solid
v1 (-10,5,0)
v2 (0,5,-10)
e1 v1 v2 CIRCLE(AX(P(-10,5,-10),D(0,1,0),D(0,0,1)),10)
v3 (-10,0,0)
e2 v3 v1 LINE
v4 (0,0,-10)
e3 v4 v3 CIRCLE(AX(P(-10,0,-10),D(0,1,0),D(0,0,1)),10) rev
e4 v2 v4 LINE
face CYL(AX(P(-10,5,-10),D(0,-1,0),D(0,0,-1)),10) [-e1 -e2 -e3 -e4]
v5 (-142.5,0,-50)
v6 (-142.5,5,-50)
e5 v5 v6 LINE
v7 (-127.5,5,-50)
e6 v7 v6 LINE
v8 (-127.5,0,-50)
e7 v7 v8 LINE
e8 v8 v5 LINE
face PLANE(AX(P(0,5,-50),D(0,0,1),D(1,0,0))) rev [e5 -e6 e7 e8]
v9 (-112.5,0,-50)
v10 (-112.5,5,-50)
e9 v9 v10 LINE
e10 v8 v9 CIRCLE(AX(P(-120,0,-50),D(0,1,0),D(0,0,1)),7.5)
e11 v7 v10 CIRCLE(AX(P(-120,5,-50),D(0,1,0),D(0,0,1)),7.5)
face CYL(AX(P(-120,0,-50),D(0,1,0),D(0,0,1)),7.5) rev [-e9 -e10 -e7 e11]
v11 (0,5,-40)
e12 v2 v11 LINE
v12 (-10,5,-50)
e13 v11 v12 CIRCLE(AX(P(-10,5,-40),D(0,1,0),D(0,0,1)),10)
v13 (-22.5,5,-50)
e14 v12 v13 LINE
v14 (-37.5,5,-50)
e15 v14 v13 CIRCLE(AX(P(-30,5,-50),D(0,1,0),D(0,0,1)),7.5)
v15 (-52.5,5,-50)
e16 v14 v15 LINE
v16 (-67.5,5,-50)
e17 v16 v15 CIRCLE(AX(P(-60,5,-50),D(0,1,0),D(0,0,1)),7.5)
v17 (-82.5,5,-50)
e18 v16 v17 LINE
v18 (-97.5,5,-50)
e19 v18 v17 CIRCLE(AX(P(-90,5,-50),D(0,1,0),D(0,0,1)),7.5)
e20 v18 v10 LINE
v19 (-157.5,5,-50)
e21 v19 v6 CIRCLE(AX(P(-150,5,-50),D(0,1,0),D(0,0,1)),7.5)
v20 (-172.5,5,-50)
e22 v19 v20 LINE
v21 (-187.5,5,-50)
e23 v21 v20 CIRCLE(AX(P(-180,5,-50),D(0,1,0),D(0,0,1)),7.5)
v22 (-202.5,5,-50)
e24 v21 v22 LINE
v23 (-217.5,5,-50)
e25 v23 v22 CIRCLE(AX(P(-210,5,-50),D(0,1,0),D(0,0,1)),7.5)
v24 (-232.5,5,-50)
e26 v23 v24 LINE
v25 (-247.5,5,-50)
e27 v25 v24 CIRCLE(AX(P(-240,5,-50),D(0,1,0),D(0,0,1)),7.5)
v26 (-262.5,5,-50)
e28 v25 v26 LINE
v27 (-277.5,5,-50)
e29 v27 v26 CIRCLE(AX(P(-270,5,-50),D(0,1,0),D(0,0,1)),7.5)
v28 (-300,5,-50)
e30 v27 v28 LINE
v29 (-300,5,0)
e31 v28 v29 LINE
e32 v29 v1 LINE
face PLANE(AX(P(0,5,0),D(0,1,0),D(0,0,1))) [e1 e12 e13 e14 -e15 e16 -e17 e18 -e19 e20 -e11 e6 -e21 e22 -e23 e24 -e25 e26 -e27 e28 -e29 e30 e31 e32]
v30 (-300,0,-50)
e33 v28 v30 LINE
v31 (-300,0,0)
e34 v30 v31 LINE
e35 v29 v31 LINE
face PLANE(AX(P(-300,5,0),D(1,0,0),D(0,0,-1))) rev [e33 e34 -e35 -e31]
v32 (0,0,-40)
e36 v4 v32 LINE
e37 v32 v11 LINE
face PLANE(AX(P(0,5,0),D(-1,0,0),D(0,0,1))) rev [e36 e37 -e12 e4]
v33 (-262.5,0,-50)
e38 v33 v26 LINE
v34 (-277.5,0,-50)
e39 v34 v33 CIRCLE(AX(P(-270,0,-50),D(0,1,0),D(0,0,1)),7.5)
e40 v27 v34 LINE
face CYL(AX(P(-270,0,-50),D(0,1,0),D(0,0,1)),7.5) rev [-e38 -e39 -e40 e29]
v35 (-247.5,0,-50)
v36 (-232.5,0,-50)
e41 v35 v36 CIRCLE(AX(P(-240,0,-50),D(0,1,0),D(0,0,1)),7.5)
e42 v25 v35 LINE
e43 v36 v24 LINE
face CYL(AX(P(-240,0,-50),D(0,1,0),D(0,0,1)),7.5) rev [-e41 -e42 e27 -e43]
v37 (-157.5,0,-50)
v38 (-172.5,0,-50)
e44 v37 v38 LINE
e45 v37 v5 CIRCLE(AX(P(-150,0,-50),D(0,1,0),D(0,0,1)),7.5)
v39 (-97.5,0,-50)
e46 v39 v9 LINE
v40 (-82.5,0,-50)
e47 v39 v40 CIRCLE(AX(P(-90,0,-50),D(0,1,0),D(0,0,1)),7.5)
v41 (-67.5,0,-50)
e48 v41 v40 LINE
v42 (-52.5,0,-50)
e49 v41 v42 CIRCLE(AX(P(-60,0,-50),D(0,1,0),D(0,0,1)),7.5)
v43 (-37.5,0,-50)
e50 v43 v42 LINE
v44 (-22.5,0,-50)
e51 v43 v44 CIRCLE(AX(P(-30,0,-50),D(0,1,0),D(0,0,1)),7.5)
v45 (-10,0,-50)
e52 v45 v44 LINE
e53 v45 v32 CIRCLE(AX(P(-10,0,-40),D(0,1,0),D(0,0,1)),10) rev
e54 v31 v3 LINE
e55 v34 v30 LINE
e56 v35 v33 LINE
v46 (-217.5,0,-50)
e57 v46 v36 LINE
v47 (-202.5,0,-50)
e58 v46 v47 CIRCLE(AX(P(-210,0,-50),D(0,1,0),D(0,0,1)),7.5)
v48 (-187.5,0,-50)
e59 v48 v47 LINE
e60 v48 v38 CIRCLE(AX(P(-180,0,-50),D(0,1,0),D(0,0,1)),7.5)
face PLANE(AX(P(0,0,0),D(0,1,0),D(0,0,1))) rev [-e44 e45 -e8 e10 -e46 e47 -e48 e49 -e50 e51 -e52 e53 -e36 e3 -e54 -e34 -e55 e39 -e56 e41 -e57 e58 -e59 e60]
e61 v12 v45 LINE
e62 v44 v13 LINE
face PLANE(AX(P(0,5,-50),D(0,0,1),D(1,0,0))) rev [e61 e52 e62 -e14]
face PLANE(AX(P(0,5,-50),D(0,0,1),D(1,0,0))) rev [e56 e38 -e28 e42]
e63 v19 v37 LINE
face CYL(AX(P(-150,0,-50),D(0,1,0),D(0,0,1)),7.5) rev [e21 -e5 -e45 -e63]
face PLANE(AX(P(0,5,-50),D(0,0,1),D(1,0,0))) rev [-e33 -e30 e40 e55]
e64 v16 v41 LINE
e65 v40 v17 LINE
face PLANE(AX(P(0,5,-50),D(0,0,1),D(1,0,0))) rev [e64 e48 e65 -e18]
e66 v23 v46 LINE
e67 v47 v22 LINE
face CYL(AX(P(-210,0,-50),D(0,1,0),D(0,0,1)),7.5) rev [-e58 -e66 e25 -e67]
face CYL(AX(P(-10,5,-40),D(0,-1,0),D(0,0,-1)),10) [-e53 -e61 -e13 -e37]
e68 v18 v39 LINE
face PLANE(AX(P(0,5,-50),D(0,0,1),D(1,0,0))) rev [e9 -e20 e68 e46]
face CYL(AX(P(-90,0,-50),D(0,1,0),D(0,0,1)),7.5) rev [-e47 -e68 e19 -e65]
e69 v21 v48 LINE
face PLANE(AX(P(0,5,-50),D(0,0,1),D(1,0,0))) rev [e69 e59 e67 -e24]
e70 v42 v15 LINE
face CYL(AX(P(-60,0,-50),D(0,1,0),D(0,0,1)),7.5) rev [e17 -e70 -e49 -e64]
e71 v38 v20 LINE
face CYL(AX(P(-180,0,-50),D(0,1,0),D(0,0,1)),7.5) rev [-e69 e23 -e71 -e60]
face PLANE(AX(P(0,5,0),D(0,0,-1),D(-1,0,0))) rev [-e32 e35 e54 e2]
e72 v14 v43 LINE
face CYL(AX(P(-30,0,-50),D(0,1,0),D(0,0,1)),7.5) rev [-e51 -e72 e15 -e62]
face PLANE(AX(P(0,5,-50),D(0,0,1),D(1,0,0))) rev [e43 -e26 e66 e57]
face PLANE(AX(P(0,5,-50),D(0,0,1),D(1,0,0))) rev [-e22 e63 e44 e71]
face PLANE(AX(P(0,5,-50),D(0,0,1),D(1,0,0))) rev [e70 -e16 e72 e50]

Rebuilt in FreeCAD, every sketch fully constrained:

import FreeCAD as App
import Part
import Sketcher
from FreeCAD import Vector


def edges_at(feature, points):
    """Names of the edges that pass closest to the given points."""
    edges = feature.Shape.Edges
    near = lambda p: min(range(len(edges)), key=lambda i: edges[i].distToShape(Part.Vertex(*p))[0])
    return sorted({f"Edge{near(p) + 1}" for p in points})


def add_polygon(sketch, points):
    """Adds a closed chain of lines whose ends are joined by coincident constraints."""
    first, n = sketch.GeometryCount, len(points)
    for a, b in zip(points, points[1:] + points[:1]):
        sketch.addGeometry(Part.LineSegment(App.Vector(*a, 0), App.Vector(*b, 0)), False)
    for i in range(n):
        sketch.addConstraint(Sketcher.Constraint("Coincident", first + i, 2, first + (i + 1) % n, 1))

doc = App.newDocument("Part")
body = doc.addObject("PartDesign::Body", "Body")

# Sketch on XZ plane
sketch1 = body.newObject("Sketcher::SketchObject", "Sketch")
sketch1.AttachmentSupport = (doc.getObject("XZ_Plane"), [""])
sketch1.MapMode = "FlatFace"
add_polygon(sketch1, [(-300, -50), (-300, 0), (0, 0), (0, -50)])  # lines 0-3
sketch1.addConstraint([
    Sketcher.Constraint("Vertical", 0),
    Sketcher.Constraint("Horizontal", 1),
    Sketcher.Constraint("Vertical", 2),
    Sketcher.Constraint("Horizontal", 3),
    Sketcher.Constraint("Coincident", 1, 2, -1, 1),
    Sketcher.Constraint("DistanceX", 1, 1, 1, 2, 300.0),
    Sketcher.Constraint("DistanceY", 0, 1, 0, 2, 50.0),
])
pad1 = body.newObject("PartDesign::Pad", "Pad")
pad1.Profile = sketch1
pad1.Length = 5
pad1.Reversed = True

# Sketch on XZ plane
sketch2 = body.newObject("Sketcher::SketchObject", "Sketch001")
sketch2.AttachmentSupport = (doc.getObject("XZ_Plane"), [""])
sketch2.MapMode = "FlatFace"
sketch2.AttachmentOffset = App.Placement(Vector(0, 0, -5), App.Rotation())
sketch2.addGeometry(Part.Circle(Vector(-270, -50, 0), Vector(0, 0, 1), 8), False)
sketch2.addConstraint([
    Sketcher.Constraint("Diameter", 0, 15.0),
    Sketcher.Constraint("DistanceX", 0, 3, -1, 1, 270.0),
    Sketcher.Constraint("DistanceY", 0, 3, -1, 1, 50.0),
])
pocket1 = body.newObject("PartDesign::Pocket", "Pocket")
pocket1.Profile = sketch2
pocket1.Length = 5
pocket1.Reversed = True
doc.recompute()

linearpattern = body.newObject("PartDesign::LinearPattern", "LinearPattern")
linearpattern.Originals = [pocket1]
linearpattern.Direction = (doc.getObject("X_Axis"), [""])
linearpattern.Mode = "offset"
linearpattern.Offset = 30
linearpattern.Occurrences = 9
body.Tip = linearpattern
doc.recompute()

fillet = body.newObject("PartDesign::Fillet", "Fillet")
fillet.Base = (linearpattern, edges_at(linearpattern, [(0, 2.5, 0), (0, 2.5, -50)]))
fillet.Radius = 10

doc.recompute()
